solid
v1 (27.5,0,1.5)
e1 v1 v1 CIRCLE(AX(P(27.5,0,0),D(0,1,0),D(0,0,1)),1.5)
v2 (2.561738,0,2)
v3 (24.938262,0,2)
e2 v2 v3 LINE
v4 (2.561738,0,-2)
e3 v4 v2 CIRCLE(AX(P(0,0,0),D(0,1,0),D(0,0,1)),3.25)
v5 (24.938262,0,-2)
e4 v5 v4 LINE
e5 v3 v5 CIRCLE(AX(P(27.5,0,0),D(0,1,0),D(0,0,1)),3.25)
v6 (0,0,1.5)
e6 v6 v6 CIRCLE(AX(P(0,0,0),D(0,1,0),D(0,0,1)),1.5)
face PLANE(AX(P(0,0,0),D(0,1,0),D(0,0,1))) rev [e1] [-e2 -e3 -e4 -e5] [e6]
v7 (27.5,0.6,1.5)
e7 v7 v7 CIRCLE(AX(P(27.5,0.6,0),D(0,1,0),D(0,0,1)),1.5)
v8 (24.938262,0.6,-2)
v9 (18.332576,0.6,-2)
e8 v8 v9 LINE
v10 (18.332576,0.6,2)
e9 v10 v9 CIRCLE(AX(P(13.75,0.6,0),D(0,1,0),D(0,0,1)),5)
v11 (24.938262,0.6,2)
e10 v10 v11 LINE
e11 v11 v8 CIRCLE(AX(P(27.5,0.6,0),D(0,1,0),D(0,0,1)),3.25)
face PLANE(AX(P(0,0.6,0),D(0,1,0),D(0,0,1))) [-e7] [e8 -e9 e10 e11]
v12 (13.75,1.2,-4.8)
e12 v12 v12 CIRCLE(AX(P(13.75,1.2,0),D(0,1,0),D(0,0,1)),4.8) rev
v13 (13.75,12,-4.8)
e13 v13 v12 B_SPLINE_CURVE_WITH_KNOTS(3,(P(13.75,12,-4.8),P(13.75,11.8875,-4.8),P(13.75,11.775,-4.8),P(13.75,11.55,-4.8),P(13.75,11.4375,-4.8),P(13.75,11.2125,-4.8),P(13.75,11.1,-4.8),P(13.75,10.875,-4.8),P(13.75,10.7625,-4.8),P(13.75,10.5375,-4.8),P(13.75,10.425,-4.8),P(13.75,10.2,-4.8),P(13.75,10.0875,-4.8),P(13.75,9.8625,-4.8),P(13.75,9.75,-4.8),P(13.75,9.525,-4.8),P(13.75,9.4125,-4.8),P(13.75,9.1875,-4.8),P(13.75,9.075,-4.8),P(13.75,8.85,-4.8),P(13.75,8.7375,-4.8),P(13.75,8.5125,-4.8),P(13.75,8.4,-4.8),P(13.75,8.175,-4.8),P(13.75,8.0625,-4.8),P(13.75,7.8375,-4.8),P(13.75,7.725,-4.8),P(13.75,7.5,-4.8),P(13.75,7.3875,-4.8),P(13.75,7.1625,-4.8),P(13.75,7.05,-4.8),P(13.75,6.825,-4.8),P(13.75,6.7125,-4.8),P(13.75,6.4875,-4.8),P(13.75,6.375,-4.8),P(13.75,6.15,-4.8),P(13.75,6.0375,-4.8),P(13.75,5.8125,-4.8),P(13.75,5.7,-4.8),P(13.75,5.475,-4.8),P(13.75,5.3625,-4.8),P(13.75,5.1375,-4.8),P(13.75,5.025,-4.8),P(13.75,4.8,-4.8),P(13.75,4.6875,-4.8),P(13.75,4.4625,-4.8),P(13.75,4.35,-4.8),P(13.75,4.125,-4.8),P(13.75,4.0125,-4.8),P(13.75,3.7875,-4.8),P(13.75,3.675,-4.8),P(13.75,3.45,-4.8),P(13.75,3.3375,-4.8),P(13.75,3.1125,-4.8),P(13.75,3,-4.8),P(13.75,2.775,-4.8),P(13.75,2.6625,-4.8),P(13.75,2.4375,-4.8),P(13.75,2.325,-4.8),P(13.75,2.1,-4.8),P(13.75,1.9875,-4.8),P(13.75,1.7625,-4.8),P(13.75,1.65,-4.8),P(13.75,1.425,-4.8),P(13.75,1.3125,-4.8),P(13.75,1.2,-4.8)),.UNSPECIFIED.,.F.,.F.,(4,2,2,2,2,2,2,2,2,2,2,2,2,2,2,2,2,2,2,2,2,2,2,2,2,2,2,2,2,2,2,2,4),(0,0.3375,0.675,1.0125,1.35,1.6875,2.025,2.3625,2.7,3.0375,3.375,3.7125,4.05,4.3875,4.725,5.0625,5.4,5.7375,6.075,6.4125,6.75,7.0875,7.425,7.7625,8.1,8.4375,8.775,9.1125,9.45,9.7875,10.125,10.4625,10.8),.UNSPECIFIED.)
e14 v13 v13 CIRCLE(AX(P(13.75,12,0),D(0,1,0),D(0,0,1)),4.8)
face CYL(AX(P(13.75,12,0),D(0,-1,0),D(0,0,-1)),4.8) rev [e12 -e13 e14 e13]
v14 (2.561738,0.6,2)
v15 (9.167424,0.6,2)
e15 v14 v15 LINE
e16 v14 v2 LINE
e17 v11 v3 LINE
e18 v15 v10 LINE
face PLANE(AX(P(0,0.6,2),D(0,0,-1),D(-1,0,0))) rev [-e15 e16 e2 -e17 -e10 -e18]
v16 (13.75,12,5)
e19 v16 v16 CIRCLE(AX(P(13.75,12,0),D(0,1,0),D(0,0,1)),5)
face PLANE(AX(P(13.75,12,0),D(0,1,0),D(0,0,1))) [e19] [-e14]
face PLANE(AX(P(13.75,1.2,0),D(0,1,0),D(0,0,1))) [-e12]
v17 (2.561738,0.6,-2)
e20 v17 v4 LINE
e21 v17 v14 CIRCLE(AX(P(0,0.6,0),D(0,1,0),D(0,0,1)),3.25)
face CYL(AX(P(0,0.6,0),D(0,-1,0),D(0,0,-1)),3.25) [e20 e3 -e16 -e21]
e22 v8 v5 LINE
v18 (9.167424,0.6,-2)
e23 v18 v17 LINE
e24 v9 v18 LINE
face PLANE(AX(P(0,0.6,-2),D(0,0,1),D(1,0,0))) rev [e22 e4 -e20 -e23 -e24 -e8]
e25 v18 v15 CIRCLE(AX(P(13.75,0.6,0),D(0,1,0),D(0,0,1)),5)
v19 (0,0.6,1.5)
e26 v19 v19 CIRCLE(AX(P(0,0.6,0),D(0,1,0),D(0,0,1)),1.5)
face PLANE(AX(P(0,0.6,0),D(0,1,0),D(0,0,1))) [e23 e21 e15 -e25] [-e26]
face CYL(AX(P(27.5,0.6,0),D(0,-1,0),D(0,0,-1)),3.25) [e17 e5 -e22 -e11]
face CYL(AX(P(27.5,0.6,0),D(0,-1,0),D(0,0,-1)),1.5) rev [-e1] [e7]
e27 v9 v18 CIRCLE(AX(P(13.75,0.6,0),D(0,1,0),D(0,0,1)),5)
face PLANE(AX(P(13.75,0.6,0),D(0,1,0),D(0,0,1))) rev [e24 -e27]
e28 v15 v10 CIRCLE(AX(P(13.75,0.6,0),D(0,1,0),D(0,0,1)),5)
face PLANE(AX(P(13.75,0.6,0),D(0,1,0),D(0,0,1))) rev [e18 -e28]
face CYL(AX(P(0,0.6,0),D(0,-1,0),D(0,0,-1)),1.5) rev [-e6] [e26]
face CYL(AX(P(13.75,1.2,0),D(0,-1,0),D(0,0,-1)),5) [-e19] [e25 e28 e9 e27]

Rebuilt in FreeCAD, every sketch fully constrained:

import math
import FreeCAD as App
import Part
import Sketcher
from FreeCAD import Vector
Q = App.Units.Quantity

doc = App.newDocument("Part")
params = doc.addObject("Spreadsheet::Sheet", "Params")
for row, (alias, value) in enumerate([
    ("sketch1_diameter", "3 mm"),
    ("sketch1_radius", "3.25 mm"),
    ("pad1_length", "0.6 mm"),
    ("sketch2_diameter", "10 mm"),
    ("pad2_length", "0.6 mm"),
    ("sketch3_diameter", "10 mm"),
    ("sketch3_diameter2", "9.6 mm"),
    ("pad3_length", "10.8 mm"),
], start=1):
    params.set(f"A{row}", alias)
    params.set(f"B{row}", "=" + value)
    params.setAlias(f"B{row}", alias)

body = doc.addObject("PartDesign::Body", "Body")

# Sketch on XZ plane
sketch1 = body.newObject("Sketcher::SketchObject", "Sketch")
sketch1.AttachmentSupport = (doc.getObject("XZ_Plane"), [""])
sketch1.MapMode = "FlatFace"
sketch1.addGeometry([
    Part.ArcOfCircle(Part.Circle(Vector(0, 0, 0), Vector(0, 0, 1), 3.2), math.radians(38), math.radians(322)),  # 0
    Part.LineSegment(Vector(2.6, 2, 0), Vector(24.9, 2, 0)),  # 1
    Part.ArcOfCircle(Part.Circle(Vector(27.5, 0, 0), Vector(0, 0, 1), 3.2), math.radians(0), math.radians(142)),  # 2
    Part.ArcOfCircle(Part.Circle(Vector(27.5, 0, 0), Vector(0, 0, 1), 3.2), math.radians(-142), math.radians(0)),  # 3
    Part.LineSegment(Vector(24.9, -2, 0), Vector(2.6, -2, 0)),  # 4
    Part.Circle(Vector(0, 0, 0), Vector(0, 0, 1), 1.5),  # 5
    Part.Circle(Vector(27.5, 0, 0), Vector(0, 0, 1), 1.5),  # 6
], False)
sketch1.addConstraint([
    Sketcher.Constraint("Coincident", 0, 1, 1, 1),
    Sketcher.Constraint("Coincident", 1, 2, 2, 2),
    Sketcher.Constraint("Tangent", 2, 1, 3, 2),
    Sketcher.Constraint("Coincident", 3, 1, 4, 1),
    Sketcher.Constraint("Coincident", 4, 2, 0, 2),
    Sketcher.Constraint("Horizontal", 1),
    Sketcher.Constraint("Horizontal", 4),
    Sketcher.Constraint("Coincident", 0, 3, -1, 1),
    Sketcher.Constraint("Coincident", 5, 3, -1, 1),
    Sketcher.Constraint("Coincident", 6, 3, 2, 3),
    Sketcher.Constraint("Equal", 0, 2),
    Sketcher.Constraint("Equal", 2, 3),
    Sketcher.Constraint("Equal", 5, 6),
    Sketcher.Constraint("Symmetric", 1, 2, 3, 1, -1),
    Sketcher.Constraint("PointOnObject", 2, 1, -1),
    Sketcher.Constraint("Diameter", 5, Q("3 mm")),
    Sketcher.Constraint("Radius", 0, Q("3.25 mm")),
    Sketcher.Constraint("DistanceY", -1, 1, 0, 1, Q("2 mm")),
    Sketcher.Constraint("DistanceX", -1, 1, 2, 3, Q("27.5 mm")),
])
sketch1.setExpression("Constraints[15]", "Params.sketch1_diameter")
sketch1.setExpression("Constraints[16]", "Params.sketch1_radius")
pad1 = body.newObject("PartDesign::Pad", "Pad")
pad1.Profile = sketch1
pad1.setExpression("Length", "Params.pad1_length")
pad1.Reversed = True

# Sketch on XZ plane
sketch2 = body.newObject("Sketcher::SketchObject", "Sketch001")
sketch2.AttachmentSupport = (doc.getObject("XZ_Plane"), [""])
sketch2.MapMode = "FlatFace"
sketch2.AttachmentOffset = App.Placement(Vector(0, 0, -0.6), App.Rotation())
sketch2.addGeometry(Part.Circle(Vector(14, 0, 0), Vector(0, 0, 1), 5), False)
sketch2.addConstraint([
    Sketcher.Constraint("PointOnObject", 0, 3, -1),
    Sketcher.Constraint("Diameter", 0, Q("10 mm")),
    Sketcher.Constraint("DistanceX", -1, 1, 0, 3, Q("13.75 mm")),
])
sketch2.setExpression("Constraints[1]", "Params.sketch2_diameter")
pad2 = body.newObject("PartDesign::Pad", "Pad001")
pad2.Profile = sketch2
pad2.setExpression("Length", "Params.pad2_length")
pad2.Reversed = True

# Sketch on XZ plane
sketch3 = body.newObject("Sketcher::SketchObject", "Sketch002")
sketch3.AttachmentSupport = (doc.getObject("XZ_Plane"), [""])
sketch3.MapMode = "FlatFace"
sketch3.AttachmentOffset = App.Placement(Vector(0, 0, -1.2), App.Rotation())
sketch3.addGeometry([
    Part.Circle(Vector(13.8, 0, 0), Vector(0, 0, 1), 5),
    Part.Circle(Vector(13.8, 0, 0), Vector(0, 0, 1), 4.8),
], False)
sketch3.addConstraint([
    Sketcher.Constraint("Coincident", 1, 3, 0, 3),
    Sketcher.Constraint("PointOnObject", 0, 3, -1),
    Sketcher.Constraint("Diameter", 0, Q("10 mm")),
    Sketcher.Constraint("Diameter", 1, Q("9.6 mm")),
    Sketcher.Constraint("DistanceX", -1, 1, 0, 3, Q("13.75 mm")),
])
sketch3.setExpression("Constraints[2]", "Params.sketch3_diameter")
sketch3.setExpression("Constraints[3]", "Params.sketch3_diameter2")
pad3 = body.newObject("PartDesign::Pad", "Pad002")
pad3.Profile = sketch3
pad3.setExpression("Length", "Params.pad3_length")
pad3.Reversed = True

doc.recompute()
